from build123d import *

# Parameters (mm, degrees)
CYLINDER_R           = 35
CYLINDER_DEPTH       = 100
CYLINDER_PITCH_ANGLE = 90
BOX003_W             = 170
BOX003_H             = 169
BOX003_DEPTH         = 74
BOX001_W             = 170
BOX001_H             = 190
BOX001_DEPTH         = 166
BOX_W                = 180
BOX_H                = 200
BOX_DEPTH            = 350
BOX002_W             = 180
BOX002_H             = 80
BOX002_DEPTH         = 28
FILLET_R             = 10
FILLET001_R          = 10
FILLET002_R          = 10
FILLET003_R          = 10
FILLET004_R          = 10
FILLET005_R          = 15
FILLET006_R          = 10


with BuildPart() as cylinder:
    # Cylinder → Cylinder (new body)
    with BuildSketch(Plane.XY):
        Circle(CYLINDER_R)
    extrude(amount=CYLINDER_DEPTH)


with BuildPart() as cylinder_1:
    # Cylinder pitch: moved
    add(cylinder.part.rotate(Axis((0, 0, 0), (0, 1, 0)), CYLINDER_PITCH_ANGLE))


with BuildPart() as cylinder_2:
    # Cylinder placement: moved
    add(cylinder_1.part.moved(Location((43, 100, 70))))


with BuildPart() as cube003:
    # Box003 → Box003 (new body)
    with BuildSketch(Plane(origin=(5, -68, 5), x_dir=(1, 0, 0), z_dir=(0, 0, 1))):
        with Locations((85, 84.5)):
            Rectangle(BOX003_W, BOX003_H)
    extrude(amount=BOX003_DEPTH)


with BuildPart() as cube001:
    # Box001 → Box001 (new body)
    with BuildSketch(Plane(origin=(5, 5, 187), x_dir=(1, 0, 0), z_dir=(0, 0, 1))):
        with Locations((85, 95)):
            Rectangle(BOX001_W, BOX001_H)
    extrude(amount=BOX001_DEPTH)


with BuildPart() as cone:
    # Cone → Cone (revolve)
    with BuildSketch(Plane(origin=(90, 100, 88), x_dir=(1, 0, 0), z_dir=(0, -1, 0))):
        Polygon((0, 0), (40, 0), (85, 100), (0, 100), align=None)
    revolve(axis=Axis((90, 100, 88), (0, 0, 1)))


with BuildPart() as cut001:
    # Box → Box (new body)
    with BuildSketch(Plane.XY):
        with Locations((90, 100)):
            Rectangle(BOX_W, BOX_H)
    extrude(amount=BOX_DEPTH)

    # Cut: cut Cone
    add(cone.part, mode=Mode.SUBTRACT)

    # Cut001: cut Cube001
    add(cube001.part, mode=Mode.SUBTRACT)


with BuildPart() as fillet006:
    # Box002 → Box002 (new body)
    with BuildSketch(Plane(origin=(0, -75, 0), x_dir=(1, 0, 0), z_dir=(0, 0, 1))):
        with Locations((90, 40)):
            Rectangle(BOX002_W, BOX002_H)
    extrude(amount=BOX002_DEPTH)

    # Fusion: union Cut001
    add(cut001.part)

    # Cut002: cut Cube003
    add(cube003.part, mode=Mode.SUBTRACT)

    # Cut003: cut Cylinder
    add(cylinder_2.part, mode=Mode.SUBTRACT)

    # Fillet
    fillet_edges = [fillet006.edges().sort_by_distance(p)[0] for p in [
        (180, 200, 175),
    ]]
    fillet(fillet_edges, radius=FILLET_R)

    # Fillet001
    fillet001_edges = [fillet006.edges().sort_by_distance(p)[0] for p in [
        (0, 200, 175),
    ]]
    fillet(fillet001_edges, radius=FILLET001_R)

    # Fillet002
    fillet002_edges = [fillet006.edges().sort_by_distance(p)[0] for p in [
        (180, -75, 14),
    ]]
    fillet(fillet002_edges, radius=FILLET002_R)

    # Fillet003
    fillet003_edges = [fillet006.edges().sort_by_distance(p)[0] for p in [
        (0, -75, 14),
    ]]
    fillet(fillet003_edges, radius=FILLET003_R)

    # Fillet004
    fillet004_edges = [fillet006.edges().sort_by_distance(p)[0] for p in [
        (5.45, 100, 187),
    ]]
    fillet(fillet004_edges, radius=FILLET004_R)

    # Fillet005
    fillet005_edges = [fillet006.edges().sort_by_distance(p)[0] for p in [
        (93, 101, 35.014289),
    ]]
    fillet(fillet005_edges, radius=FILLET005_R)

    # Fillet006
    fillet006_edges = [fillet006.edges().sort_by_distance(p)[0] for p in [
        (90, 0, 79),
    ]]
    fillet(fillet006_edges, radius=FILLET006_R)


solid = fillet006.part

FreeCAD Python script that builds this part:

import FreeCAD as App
import Part
import Sketcher
from FreeCAD import Vector
Q = App.Units.Quantity


def edges_at(feature, points):
    """Names of the edges that pass closest to the given points."""
    edges = feature.Shape.Edges
    near = lambda p: min(range(len(edges)), key=lambda i: edges[i].distToShape(Part.Vertex(*p))[0])
    return sorted({f"Edge{near(p) + 1}" for p in points})

doc = App.newDocument("Part")
body = doc.addObject("PartDesign::Body", "Body")

# Sketch on XY plane
sketch1 = body.newObject("Sketcher::SketchObject", "Sketch")
sketch1.AttachmentSupport = (doc.getObject("XY_Plane"), [""])
sketch1.MapMode = "FlatFace"
sketch1.addGeometry(Part.Circle(Vector(0, 0, 0), Vector(0, 0, 1), 35), False)
sketch1.addConstraint(Sketcher.Constraint("Coincident", 0, 3, -1, 1))
sketch1.addConstraint(Sketcher.Constraint("Diameter", 0, Q("70 mm")))
pad1 = body.newObject("PartDesign::Pad", "Pad")
pad1.Profile = sketch1
pad1.Length = 100
body2 = doc.addObject("PartDesign::Body", "Body001")
doc.recompute()

body.Placement = App.Placement(Vector(0, 0, 0), App.Rotation(Vector(0, 1, 0), 90))
boolean = body2.newObject("PartDesign::Boolean", "Boolean")
boolean.Type = "Fuse"
boolean.addObjects([body])
body3 = doc.addObject("PartDesign::Body", "Body002")
doc.recompute()

body2.Placement = App.Placement(Vector(43, 100, 70), App.Rotation(Vector(0, 0, 1), 0))
boolean2 = body3.newObject("PartDesign::Boolean", "Boolean001")
boolean2.Type = "Fuse"
boolean2.addObjects([body2])
body4 = doc.addObject("PartDesign::Body", "Body003")

# Sketch on XY plane
sketch2 = body4.newObject("Sketcher::SketchObject", "Sketch001")
sketch2.AttachmentSupport = (doc.getObject("XY_Plane003"), [""])
sketch2.MapMode = "FlatFace"
sketch2.AttachmentOffset = App.Placement(Vector(0, 0, 5), App.Rotation())
sketch2.addGeometry(Part.LineSegment(Vector(5, 101, 0), Vector(5, -68, 0)), False)
sketch2.addGeometry(Part.LineSegment(Vector(5, -68, 0), Vector(175, -68, 0)), False)
sketch2.addGeometry(Part.LineSegment(Vector(175, -68, 0), Vector(175, 101, 0)), False)
sketch2.addGeometry(Part.LineSegment(Vector(175, 101, 0), Vector(5, 101, 0)), False)
sketch2.addConstraint(Sketcher.Constraint("Coincident", 0, 2, 1, 1))
sketch2.addConstraint(Sketcher.Constraint("Coincident", 1, 2, 2, 1))
sketch2.addConstraint(Sketcher.Constraint("Coincident", 2, 2, 3, 1))
sketch2.addConstraint(Sketcher.Constraint("Coincident", 3, 2, 0, 1))
sketch2.addConstraint(Sketcher.Constraint("Vertical", 0))
sketch2.addConstraint(Sketcher.Constraint("Horizontal", 1))
sketch2.addConstraint(Sketcher.Constraint("Vertical", 2))
sketch2.addConstraint(Sketcher.Constraint("Horizontal", 3))
sketch2.addConstraint(Sketcher.Constraint("DistanceX", 1, 1, 1, 2, Q("170 mm")))
sketch2.addConstraint(Sketcher.Constraint("DistanceY", 0, 2, 0, 1, Q("169 mm")))
sketch2.addConstraint(Sketcher.Constraint("DistanceX", -1, 1, 0, 2, Q("5 mm")))
sketch2.addConstraint(Sketcher.Constraint("DistanceY", 0, 2, -1, 1, Q("68 mm")))
pad2 = body4.newObject("PartDesign::Pad", "Pad001")
pad2.Profile = sketch2
pad2.Length = 74
body5 = doc.addObject("PartDesign::Body", "Body004")

# Sketch on XY plane
sketch3 = body5.newObject("Sketcher::SketchObject", "Sketch002")
sketch3.AttachmentSupport = (doc.getObject("XY_Plane004"), [""])
sketch3.MapMode = "FlatFace"
sketch3.AttachmentOffset = App.Placement(Vector(0, 0, 187), App.Rotation())
sketch3.addGeometry(Part.LineSegment(Vector(5, 195, 0), Vector(5, 5, 0)), False)
sketch3.addGeometry(Part.LineSegment(Vector(5, 5, 0), Vector(175, 5, 0)), False)
sketch3.addGeometry(Part.LineSegment(Vector(175, 5, 0), Vector(175, 195, 0)), False)
sketch3.addGeometry(Part.LineSegment(Vector(175, 195, 0), Vector(5, 195, 0)), False)
sketch3.addConstraint(Sketcher.Constraint("Coincident", 0, 2, 1, 1))
sketch3.addConstraint(Sketcher.Constraint("Coincident", 1, 2, 2, 1))
sketch3.addConstraint(Sketcher.Constraint("Coincident", 2, 2, 3, 1))
sketch3.addConstraint(Sketcher.Constraint("Coincident", 3, 2, 0, 1))
sketch3.addConstraint(Sketcher.Constraint("Vertical", 0))
sketch3.addConstraint(Sketcher.Constraint("Horizontal", 1))
sketch3.addConstraint(Sketcher.Constraint("Vertical", 2))
sketch3.addConstraint(Sketcher.Constraint("Horizontal", 3))
sketch3.addConstraint(Sketcher.Constraint("DistanceX", 1, 1, 1, 2, Q("170 mm")))
sketch3.addConstraint(Sketcher.Constraint("DistanceY", 0, 2, 0, 1, Q("190 mm")))
sketch3.addConstraint(Sketcher.Constraint("DistanceX", -1, 1, 0, 2, Q("5 mm")))
sketch3.addConstraint(Sketcher.Constraint("DistanceY", -1, 1, 0, 2, Q("5 mm")))
pad3 = body5.newObject("PartDesign::Pad", "Pad002")
pad3.Profile = sketch3
pad3.Length = 166
body6 = doc.addObject("PartDesign::Body", "Body005")

# Sketch on XZ plane
sketch4 = body6.newObject("Sketcher::SketchObject", "Sketch003")
sketch4.AttachmentSupport = (doc.getObject("XZ_Plane005"), [""])
sketch4.MapMode = "FlatFace"
sketch4.AttachmentOffset = App.Placement(Vector(0, 0, -100), App.Rotation())
sketch4.addGeometry(Part.LineSegment(Vector(90, 88, 0), Vector(130, 88, 0)), False)
sketch4.addGeometry(Part.LineSegment(Vector(130, 88, 0), Vector(175, 188, 0)), False)
sketch4.addGeometry(Part.LineSegment(Vector(175, 188, 0), Vector(90, 188, 0)), False)
sketch4.addGeometry(Part.LineSegment(Vector(90, 188, 0), Vector(90, 88, 0)), False)
sketch4.addGeometry(Part.LineSegment(Vector(90, 88, 0), Vector(90, 188, 0)), True)  # axis
sketch4.addConstraint(Sketcher.Constraint("Coincident", 0, 2, 1, 1))
sketch4.addConstraint(Sketcher.Constraint("Coincident", 1, 2, 2, 1))
sketch4.addConstraint(Sketcher.Constraint("Coincident", 2, 2, 3, 1))
sketch4.addConstraint(Sketcher.Constraint("Coincident", 3, 2, 0, 1))
sketch4.addConstraint(Sketcher.Constraint("Horizontal", 0))
sketch4.addConstraint(Sketcher.Constraint("Horizontal", 2))
sketch4.addConstraint(Sketcher.Constraint("Vertical", 3))
sketch4.addConstraint(Sketcher.Constraint("Vertical", 4))
sketch4.addConstraint(Sketcher.Constraint("Coincident", 4, 1, 3, 2))
sketch4.addConstraint(Sketcher.Constraint("Horizontal", 1, 2, 4, 2))
sketch4.addConstraint(Sketcher.Constraint("DistanceX", 0, 1, 0, 2, Q("40 mm")))
sketch4.addConstraint(Sketcher.Constraint("DistanceX", 2, 2, 2, 1, Q("85 mm")))
sketch4.addConstraint(Sketcher.Constraint("DistanceY", 3, 2, 3, 1, Q("100 mm")))
sketch4.addConstraint(Sketcher.Constraint("DistanceX", -1, 1, 0, 2, Q("130 mm")))
sketch4.addConstraint(Sketcher.Constraint("DistanceY", -1, 1, 0, 2, Q("88 mm")))
revolution = body6.newObject("PartDesign::Revolution", "Revolution")
revolution.Profile = sketch4
revolution.ReferenceAxis = (sketch4, ["Axis0"])
revolution.Angle = 360
body7 = doc.addObject("PartDesign::Body", "Body006")

# Sketch on XY plane
sketch5 = body7.newObject("Sketcher::SketchObject", "Sketch004")
sketch5.AttachmentSupport = (doc.getObject("XY_Plane006"), [""])
sketch5.MapMode = "FlatFace"
sketch5.addGeometry(Part.LineSegment(Vector(0, 200, 0), Vector(0, 0, 0)), False)
sketch5.addGeometry(Part.LineSegment(Vector(0, 0, 0), Vector(180, 0, 0)), False)
sketch5.addGeometry(Part.LineSegment(Vector(180, 0, 0), Vector(180, 200, 0)), False)
sketch5.addGeometry(Part.LineSegment(Vector(180, 200, 0), Vector(0, 200, 0)), False)
sketch5.addConstraint(Sketcher.Constraint("Coincident", 0, 2, 1, 1))
sketch5.addConstraint(Sketcher.Constraint("Coincident", 1, 2, 2, 1))
sketch5.addConstraint(Sketcher.Constraint("Coincident", 2, 2, 3, 1))
sketch5.addConstraint(Sketcher.Constraint("Coincident", 3, 2, 0, 1))
sketch5.addConstraint(Sketcher.Constraint("Vertical", 0))
sketch5.addConstraint(Sketcher.Constraint("Horizontal", 1))
sketch5.addConstraint(Sketcher.Constraint("Vertical", 2))
sketch5.addConstraint(Sketcher.Constraint("Horizontal", 3))
sketch5.addConstraint(Sketcher.Constraint("Coincident", 0, 2, -1, 1))
sketch5.addConstraint(Sketcher.Constraint("DistanceX", 1, 1, 1, 2, Q("180 mm")))
sketch5.addConstraint(Sketcher.Constraint("DistanceY", 0, 2, 0, 1, Q("200 mm")))
pad4 = body7.newObject("PartDesign::Pad", "Pad003")
pad4.Profile = sketch5
pad4.Length = 350
doc.recompute()

boolean3 = body7.newObject("PartDesign::Boolean", "Boolean002")
boolean3.Type = "Cut"
boolean3.addObjects([body6])
doc.recompute()

boolean4 = body7.newObject("PartDesign::Boolean", "Boolean003")
boolean4.Type = "Cut"
boolean4.addObjects([body5])
body8 = doc.addObject("PartDesign::Body", "Body007")

# Sketch on XY plane
sketch6 = body8.newObject("Sketcher::SketchObject", "Sketch005")
sketch6.AttachmentSupport = (doc.getObject("XY_Plane007"), [""])
sketch6.MapMode = "FlatFace"
sketch6.addGeometry(Part.LineSegment(Vector(0, 5, 0), Vector(0, -75, 0)), False)
sketch6.addGeometry(Part.LineSegment(Vector(0, -75, 0), Vector(180, -75, 0)), False)
sketch6.addGeometry(Part.LineSegment(Vector(180, -75, 0), Vector(180, 5, 0)), False)
sketch6.addGeometry(Part.LineSegment(Vector(180, 5, 0), Vector(0, 5, 0)), False)
sketch6.addConstraint(Sketcher.Constraint("Coincident", 0, 2, 1, 1))
sketch6.addConstraint(Sketcher.Constraint("Coincident", 1, 2, 2, 1))
sketch6.addConstraint(Sketcher.Constraint("Coincident", 2, 2, 3, 1))
sketch6.addConstraint(Sketcher.Constraint("Coincident", 3, 2, 0, 1))
sketch6.addConstraint(Sketcher.Constraint("Vertical", 0))
sketch6.addConstraint(Sketcher.Constraint("Horizontal", 1))
sketch6.addConstraint(Sketcher.Constraint("Vertical", 2))
sketch6.addConstraint(Sketcher.Constraint("Horizontal", 3))
sketch6.addConstraint(Sketcher.Constraint("PointOnObject", 0, 2, -2))
sketch6.addConstraint(Sketcher.Constraint("DistanceX", 1, 1, 1, 2, Q("180 mm")))
sketch6.addConstraint(Sketcher.Constraint("DistanceY", 0, 2, 0, 1, Q("80 mm")))
sketch6.addConstraint(Sketcher.Constraint("DistanceY", 0, 2, -1, 1, Q("75 mm")))
pad5 = body8.newObject("PartDesign::Pad", "Pad004")
pad5.Profile = sketch6
pad5.Length = 28
doc.recompute()

boolean5 = body8.newObject("PartDesign::Boolean", "Boolean004")
boolean5.Type = "Fuse"
boolean5.addObjects([body7])
doc.recompute()

boolean6 = body8.newObject("PartDesign::Boolean", "Boolean005")
boolean6.Type = "Cut"
boolean6.addObjects([body4])
doc.recompute()

boolean7 = body8.newObject("PartDesign::Boolean", "Boolean006")
boolean7.Type = "Cut"
boolean7.addObjects([body3])
doc.recompute()

fillet = body8.newObject("PartDesign::Fillet", "Fillet")
fillet.Base = (boolean7, edges_at(boolean7, [(180, 200, 175)]))
fillet.Radius = 10
doc.recompute()

fillet2 = body8.newObject("PartDesign::Fillet", "Fillet001")
fillet2.Base = (fillet, edges_at(fillet, [(0, 200, 175)]))
fillet2.Radius = 10
doc.recompute()

fillet3 = body8.newObject("PartDesign::Fillet", "Fillet002")
fillet3.Base = (fillet2, edges_at(fillet2, [(180, -75, 14)]))
fillet3.Radius = 10
doc.recompute()

fillet4 = body8.newObject("PartDesign::Fillet", "Fillet003")
fillet4.Base = (fillet3, edges_at(fillet3, [(0, -75, 14)]))
fillet4.Radius = 10
doc.recompute()

fillet5 = body8.newObject("PartDesign::Fillet", "Fillet004")
fillet5.Base = (fillet4, edges_at(fillet4, [(5.45, 100, 187)]))
fillet5.Radius = 10
doc.recompute()

fillet6 = body8.newObject("PartDesign::Fillet", "Fillet005")
fillet6.Base = (fillet5, edges_at(fillet5, [(93, 101, 35.014)]))
fillet6.Radius = 15
doc.recompute()

fillet7 = body8.newObject("PartDesign::Fillet", "Fillet006")
fillet7.Base = (fillet6, edges_at(fillet6, [(90, 0, 79)]))
fillet7.Radius = 10

doc.recompute()
